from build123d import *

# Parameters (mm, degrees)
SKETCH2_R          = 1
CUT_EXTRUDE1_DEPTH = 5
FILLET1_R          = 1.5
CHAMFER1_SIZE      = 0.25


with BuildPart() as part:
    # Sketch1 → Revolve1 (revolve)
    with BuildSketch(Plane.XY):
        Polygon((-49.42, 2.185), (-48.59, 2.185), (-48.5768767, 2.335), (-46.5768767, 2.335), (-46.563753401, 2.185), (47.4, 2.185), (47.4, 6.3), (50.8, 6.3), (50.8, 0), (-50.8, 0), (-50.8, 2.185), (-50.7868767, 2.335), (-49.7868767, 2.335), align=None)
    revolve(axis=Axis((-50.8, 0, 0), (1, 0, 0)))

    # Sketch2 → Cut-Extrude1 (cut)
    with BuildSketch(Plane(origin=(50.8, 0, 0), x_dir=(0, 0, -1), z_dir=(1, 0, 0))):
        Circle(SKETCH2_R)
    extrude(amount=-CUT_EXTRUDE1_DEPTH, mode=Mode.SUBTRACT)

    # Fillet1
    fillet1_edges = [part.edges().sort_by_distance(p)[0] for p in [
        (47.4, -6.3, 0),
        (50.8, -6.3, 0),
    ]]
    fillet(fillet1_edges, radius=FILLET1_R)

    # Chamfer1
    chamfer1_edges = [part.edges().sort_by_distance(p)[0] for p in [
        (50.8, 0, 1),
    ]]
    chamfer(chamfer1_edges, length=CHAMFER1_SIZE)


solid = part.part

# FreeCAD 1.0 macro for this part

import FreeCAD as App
import Part
import Sketcher
from FreeCAD import Vector
Q = App.Units.Quantity


def edges_at(feature, points):
    """Names of the edges that pass closest to the given points."""
    edges = feature.Shape.Edges
    near = lambda p: min(range(len(edges)), key=lambda i: edges[i].distToShape(Part.Vertex(*p))[0])
    return sorted({f"Edge{near(p) + 1}" for p in points})

doc = App.newDocument("Part")
body = doc.addObject("PartDesign::Body", "Body")

sketch1 = body.newObject("Sketcher::SketchObject", "Sketch")
sketch1.AttachmentSupport = (doc.getObject("XY_Plane"), [""])
sketch1.MapMode = "FlatFace"
sketch1.addGeometry([
    Part.LineSegment(Vector(-48.59, 2.19, 0), Vector(-49.42, 2.19, 0)),
    Part.LineSegment(Vector(-49.42, 2.19, 0), Vector(-49.79, 2.33, 0)),
    Part.LineSegment(Vector(-49.79, 2.33, 0), Vector(-50.79, 2.33, 0)),
    Part.LineSegment(Vector(-50.79, 2.33, 0), Vector(-50.8, 2.19, 0)),
    Part.LineSegment(Vector(-50.8, 2.19, 0), Vector(-50.8, 0, 0)),
    Part.LineSegment(Vector(-50.8, 0, 0), Vector(50.8, 0, 0)),
    Part.LineSegment(Vector(50.8, 0, 0), Vector(50.8, 6.3, 0)),
    Part.LineSegment(Vector(50.8, 6.3, 0), Vector(47.4, 6.3, 0)),
    Part.LineSegment(Vector(47.4, 6.3, 0), Vector(47.4, 2.19, 0)),
    Part.LineSegment(Vector(47.4, 2.19, 0), Vector(-46.56, 2.19, 0)),
    Part.LineSegment(Vector(-46.56, 2.19, 0), Vector(-46.58, 2.33, 0)),
    Part.LineSegment(Vector(-46.58, 2.33, 0), Vector(-48.58, 2.33, 0)),
    Part.LineSegment(Vector(-48.58, 2.33, 0), Vector(-48.59, 2.19, 0)),
], False)
sketch1.addConstraint([
    Sketcher.Constraint("Coincident", 0, 2, 1, 1),
    Sketcher.Constraint("Coincident", 1, 2, 2, 1),
    Sketcher.Constraint("Coincident", 2, 2, 3, 1),
    Sketcher.Constraint("Coincident", 3, 2, 4, 1),
    Sketcher.Constraint("Coincident", 4, 2, 5, 1),
    Sketcher.Constraint("Coincident", 5, 2, 6, 1),
    Sketcher.Constraint("Coincident", 6, 2, 7, 1),
    Sketcher.Constraint("Coincident", 7, 2, 8, 1),
    Sketcher.Constraint("Coincident", 8, 2, 9, 1),
    Sketcher.Constraint("Coincident", 9, 2, 10, 1),
    Sketcher.Constraint("Coincident", 10, 2, 11, 1),
    Sketcher.Constraint("Coincident", 11, 2, 12, 1),
    Sketcher.Constraint("Coincident", 12, 2, 0, 1),
    Sketcher.Constraint("Horizontal", 0),
    Sketcher.Constraint("Horizontal", 2),
    Sketcher.Constraint("Vertical", 4),
    Sketcher.Constraint("Horizontal", 5),
    Sketcher.Constraint("Vertical", 6),
    Sketcher.Constraint("Horizontal", 7),
    Sketcher.Constraint("Vertical", 8),
    Sketcher.Constraint("Horizontal", 9),
    Sketcher.Constraint("Horizontal", 11),
    Sketcher.Constraint("Symmetric", 4, 2, 5, 2, -1, 1),
    Sketcher.Constraint("Parallel", 3, 12),
    Sketcher.Constraint("Horizontal", 0, 2, 3, 2),
    Sketcher.Constraint("Horizontal", 3, 2, 8, 2),
    Sketcher.Constraint("Horizontal", 2, 2, 10, 2),
    Sketcher.Constraint("Equal", 3, 10),
    Sketcher.Constraint("DistanceX", 2, 2, 2, 1, Q("1 mm")),
    Sketcher.Constraint("DistanceX", 11, 2, 11, 1, Q("2 mm")),
    Sketcher.Constraint("Angle", 3, Q("-95 deg")),
    Sketcher.Constraint("DistanceX", 5, 1, 5, 2, Q("101.6 mm")),
    Sketcher.Constraint("DistanceX", 7, 2, 7, 1, Q("3.4 mm")),
    Sketcher.Constraint("DistanceY", 6, 1, 6, 2, Q("6.3 mm")),
    Sketcher.Constraint("DistanceX", 0, 2, 0, 1, Q("0.83 mm")),
    Sketcher.Constraint("DistanceY", 4, 2, 4, 1, Q("2.185 mm")),
    Sketcher.Constraint("DistanceX", 0, 2, -1, 1, Q("49.42 mm")),
    Sketcher.Constraint("DistanceY", 0, 2, 1, 2, Q("0.15 mm")),
])
revolution = body.newObject("PartDesign::Revolution", "Revolution")
revolution.Profile = sketch1
revolution.ReferenceAxis = (sketch1, ["H_Axis"])
revolution.Angle = 360

sketch2 = body.newObject("Sketcher::SketchObject", "Sketch001")
sketch2.AttachmentSupport = (doc.getObject("YZ_Plane"), [""])
sketch2.MapMode = "FlatFace"
sketch2.AttachmentOffset = App.Placement(Vector(0, 0, 50.8), App.Rotation())
sketch2.addGeometry(Part.Circle(Vector(0, 0, 0), Vector(0, 0, 1), 1), False)
sketch2.addConstraint([
    Sketcher.Constraint("Coincident", 0, 3, -1, 1),
    Sketcher.Constraint("Diameter", 0, Q("2 mm")),
])
pocket1 = body.newObject("PartDesign::Pocket", "Pocket")
pocket1.Profile = sketch2
pocket1.Length = 5
doc.recompute()

fillet = body.newObject("PartDesign::Fillet", "Fillet")
fillet.Base = (pocket1, edges_at(pocket1, [(47.4, -6.3, 0), (50.8, -6.3, 0)]))
fillet.Radius = 1.5
doc.recompute()

chamfer = body.newObject("PartDesign::Chamfer", "Chamfer")
chamfer.Base = (fillet, edges_at(fillet, [(50.8, 0, 1)]))
chamfer.Size = 0.25

doc.recompute()
